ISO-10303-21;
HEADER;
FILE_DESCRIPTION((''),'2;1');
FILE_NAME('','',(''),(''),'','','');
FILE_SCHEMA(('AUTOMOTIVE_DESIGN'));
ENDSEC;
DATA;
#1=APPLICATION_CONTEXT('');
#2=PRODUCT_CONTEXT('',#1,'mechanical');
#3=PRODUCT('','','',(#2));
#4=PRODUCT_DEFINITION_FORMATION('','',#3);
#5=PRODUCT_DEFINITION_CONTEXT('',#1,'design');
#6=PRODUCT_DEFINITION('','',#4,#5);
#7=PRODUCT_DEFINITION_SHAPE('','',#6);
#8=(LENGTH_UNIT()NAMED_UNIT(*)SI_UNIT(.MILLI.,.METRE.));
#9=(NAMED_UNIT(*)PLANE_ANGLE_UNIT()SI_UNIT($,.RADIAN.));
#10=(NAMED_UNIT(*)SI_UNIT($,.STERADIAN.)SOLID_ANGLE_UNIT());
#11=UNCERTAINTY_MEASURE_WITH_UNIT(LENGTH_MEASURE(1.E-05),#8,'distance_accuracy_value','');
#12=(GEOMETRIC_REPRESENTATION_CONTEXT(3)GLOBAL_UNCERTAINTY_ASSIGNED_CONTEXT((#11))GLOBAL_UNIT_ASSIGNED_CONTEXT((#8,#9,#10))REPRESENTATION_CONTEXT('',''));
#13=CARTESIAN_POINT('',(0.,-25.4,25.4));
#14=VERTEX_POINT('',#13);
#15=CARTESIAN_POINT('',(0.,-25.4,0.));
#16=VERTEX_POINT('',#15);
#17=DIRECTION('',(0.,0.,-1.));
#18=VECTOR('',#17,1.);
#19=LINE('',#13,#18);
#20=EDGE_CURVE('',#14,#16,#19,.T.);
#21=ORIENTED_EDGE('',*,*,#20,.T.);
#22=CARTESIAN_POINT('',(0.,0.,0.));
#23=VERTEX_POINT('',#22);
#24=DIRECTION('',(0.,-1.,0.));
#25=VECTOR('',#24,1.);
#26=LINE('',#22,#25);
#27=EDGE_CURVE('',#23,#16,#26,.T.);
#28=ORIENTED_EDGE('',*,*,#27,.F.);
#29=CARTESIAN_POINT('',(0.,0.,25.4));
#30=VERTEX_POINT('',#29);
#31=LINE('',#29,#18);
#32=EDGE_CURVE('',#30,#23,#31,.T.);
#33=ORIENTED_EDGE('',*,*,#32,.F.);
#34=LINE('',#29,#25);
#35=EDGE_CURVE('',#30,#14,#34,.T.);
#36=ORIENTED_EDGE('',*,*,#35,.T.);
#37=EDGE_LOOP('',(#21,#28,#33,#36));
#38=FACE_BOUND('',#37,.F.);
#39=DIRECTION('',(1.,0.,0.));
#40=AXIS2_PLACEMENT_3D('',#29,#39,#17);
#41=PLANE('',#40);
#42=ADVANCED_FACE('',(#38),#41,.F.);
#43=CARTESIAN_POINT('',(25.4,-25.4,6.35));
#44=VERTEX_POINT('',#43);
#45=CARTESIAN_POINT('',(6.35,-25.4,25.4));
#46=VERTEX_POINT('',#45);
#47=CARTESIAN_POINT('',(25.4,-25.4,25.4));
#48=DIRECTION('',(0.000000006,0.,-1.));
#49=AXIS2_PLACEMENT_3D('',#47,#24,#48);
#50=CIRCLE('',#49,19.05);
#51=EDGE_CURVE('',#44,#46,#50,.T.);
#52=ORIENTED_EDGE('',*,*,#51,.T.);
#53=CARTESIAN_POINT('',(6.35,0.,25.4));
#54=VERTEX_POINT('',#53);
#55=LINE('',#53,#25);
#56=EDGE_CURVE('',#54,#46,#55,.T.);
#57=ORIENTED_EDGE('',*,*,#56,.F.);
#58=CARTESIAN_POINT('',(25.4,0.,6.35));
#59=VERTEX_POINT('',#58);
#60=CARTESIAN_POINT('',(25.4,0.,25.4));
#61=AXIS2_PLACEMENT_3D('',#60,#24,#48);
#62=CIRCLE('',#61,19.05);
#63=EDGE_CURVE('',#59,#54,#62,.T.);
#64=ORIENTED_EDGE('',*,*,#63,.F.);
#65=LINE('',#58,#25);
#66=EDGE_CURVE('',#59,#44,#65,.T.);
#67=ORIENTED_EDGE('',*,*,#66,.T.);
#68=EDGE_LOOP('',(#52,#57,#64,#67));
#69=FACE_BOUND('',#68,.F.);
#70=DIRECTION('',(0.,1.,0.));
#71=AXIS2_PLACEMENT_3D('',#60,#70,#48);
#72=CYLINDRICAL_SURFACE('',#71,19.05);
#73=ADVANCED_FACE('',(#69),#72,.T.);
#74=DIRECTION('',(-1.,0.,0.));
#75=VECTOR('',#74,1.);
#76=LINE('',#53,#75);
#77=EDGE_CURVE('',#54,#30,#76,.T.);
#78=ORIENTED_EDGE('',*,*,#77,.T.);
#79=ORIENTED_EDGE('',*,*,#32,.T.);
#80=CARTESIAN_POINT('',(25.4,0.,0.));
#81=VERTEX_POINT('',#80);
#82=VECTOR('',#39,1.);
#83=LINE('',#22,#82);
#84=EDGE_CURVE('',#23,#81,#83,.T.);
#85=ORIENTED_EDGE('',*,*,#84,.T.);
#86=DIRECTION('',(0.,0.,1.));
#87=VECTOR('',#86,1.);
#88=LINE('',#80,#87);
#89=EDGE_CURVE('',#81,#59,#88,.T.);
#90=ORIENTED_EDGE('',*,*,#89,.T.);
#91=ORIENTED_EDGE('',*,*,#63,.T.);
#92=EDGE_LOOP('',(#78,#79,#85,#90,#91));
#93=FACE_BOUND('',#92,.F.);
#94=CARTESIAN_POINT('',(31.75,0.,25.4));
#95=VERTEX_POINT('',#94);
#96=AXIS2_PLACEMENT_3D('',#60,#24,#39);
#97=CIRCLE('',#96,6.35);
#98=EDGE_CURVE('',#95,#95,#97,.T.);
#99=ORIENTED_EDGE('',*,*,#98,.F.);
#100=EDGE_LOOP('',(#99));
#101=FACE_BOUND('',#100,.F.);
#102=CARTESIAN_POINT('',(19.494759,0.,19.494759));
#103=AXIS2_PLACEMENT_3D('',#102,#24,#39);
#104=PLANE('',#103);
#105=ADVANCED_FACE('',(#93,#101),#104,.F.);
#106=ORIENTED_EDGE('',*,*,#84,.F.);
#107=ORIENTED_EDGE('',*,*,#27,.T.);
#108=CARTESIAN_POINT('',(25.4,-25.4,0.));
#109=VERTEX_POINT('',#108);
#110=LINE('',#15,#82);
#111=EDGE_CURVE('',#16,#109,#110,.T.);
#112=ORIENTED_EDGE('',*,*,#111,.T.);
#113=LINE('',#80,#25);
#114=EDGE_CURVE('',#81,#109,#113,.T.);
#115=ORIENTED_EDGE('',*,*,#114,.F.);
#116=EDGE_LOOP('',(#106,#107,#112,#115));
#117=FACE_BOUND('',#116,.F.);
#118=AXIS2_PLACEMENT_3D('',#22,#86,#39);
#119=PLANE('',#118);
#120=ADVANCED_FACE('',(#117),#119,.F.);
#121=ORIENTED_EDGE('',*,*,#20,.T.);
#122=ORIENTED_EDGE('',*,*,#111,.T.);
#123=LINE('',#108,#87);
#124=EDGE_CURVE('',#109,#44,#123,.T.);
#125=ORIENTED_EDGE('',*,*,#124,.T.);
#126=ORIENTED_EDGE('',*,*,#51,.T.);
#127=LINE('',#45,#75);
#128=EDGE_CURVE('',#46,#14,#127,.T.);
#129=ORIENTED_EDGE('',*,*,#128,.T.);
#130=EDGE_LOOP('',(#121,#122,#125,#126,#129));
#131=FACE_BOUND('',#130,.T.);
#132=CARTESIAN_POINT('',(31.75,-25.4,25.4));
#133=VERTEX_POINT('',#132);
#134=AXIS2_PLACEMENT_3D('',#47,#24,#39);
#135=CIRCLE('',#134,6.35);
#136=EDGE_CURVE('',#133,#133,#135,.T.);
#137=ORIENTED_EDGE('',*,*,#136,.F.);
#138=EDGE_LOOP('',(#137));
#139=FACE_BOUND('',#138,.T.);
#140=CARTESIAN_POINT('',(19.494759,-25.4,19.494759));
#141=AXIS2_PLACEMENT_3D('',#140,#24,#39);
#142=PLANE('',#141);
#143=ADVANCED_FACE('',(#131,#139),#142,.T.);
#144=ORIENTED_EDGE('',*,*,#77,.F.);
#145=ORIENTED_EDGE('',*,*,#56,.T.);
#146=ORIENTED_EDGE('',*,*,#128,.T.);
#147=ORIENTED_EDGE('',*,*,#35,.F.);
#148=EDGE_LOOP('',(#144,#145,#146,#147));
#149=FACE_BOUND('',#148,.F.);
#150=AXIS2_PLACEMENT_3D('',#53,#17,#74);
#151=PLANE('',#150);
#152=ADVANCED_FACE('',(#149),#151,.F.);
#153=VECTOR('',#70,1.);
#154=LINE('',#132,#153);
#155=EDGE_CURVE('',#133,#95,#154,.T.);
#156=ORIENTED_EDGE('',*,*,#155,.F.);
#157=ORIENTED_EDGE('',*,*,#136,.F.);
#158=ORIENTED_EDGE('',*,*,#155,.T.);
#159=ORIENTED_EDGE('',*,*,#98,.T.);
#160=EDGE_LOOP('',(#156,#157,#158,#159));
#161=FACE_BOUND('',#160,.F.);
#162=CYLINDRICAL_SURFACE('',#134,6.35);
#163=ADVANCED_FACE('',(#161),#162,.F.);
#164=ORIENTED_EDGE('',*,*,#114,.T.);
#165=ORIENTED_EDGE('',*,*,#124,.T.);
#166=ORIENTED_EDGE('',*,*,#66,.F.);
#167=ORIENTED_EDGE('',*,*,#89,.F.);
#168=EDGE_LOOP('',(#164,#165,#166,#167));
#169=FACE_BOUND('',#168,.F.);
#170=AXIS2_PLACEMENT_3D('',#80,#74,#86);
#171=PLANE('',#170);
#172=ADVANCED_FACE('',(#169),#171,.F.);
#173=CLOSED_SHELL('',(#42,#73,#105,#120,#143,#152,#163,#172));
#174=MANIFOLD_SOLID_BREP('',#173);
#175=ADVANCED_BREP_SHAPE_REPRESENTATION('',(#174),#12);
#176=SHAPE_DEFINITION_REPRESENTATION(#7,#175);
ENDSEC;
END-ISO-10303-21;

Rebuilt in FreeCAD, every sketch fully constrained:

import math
import FreeCAD as App
import Part
import Sketcher
from FreeCAD import Vector
Q = App.Units.Quantity

doc = App.newDocument("Part")
params = doc.addObject("Spreadsheet::Sheet", "Params")
for row, (alias, value) in enumerate([
    ("sketch1_width", "1 in"),
    ("sketch1_radius", "0.75 in"),
    ("pad1_length", "1 in"),
    ("sketch2_diameter", "0.5 in"),
    ("pocket1_length", "1 in"),
], start=1):
    params.set(f"A{row}", alias)
    params.set(f"B{row}", "=" + value)
    params.setAlias(f"B{row}", alias)

body = doc.addObject("PartDesign::Body", "Body")

# Sketch on XZ plane
sketch1 = body.newObject("Sketcher::SketchObject", "Sketch")
sketch1.AttachmentSupport = (doc.getObject("XZ_Plane"), [""])
sketch1.MapMode = "FlatFace"
sketch1.addGeometry(Part.LineSegment(Vector(0, 25.4, 0), Vector(0, 0, 0)), False)
sketch1.addGeometry(Part.LineSegment(Vector(0, 0, 0), Vector(25.4, 0, 0)), False)
sketch1.addGeometry(Part.LineSegment(Vector(25.4, 0, 0), Vector(25.4, 6.35, 0)), False)
sketch1.addGeometry(Part.ArcOfCircle(Part.Circle(Vector(25.4, 25.4, 0), Vector(0, 0, 1), 19.05), math.radians(-90), math.radians(180)), False)
sketch1.addGeometry(Part.LineSegment(Vector(6.35, 25.4, 0), Vector(0, 25.4, 0)), False)
sketch1.addConstraint(Sketcher.Constraint("Coincident", 0, 2, 1, 1))
sketch1.addConstraint(Sketcher.Constraint("Coincident", 1, 2, 2, 1))
sketch1.addConstraint(Sketcher.Constraint("Coincident", 2, 2, 3, 1))
sketch1.addConstraint(Sketcher.Constraint("Coincident", 3, 2, 4, 1))
sketch1.addConstraint(Sketcher.Constraint("Coincident", 4, 2, 0, 1))
sketch1.addConstraint(Sketcher.Constraint("Vertical", 0))
sketch1.addConstraint(Sketcher.Constraint("Horizontal", 1))
sketch1.addConstraint(Sketcher.Constraint("Vertical", 2))
sketch1.addConstraint(Sketcher.Constraint("Horizontal", 4))
sketch1.addConstraint(Sketcher.Constraint("Coincident", 0, 2, -1, 1))
sketch1.addConstraint(Sketcher.Constraint("Vertical", 3, 3, 1, 2))
sketch1.addConstraint(Sketcher.Constraint("Equal", 1, 0))
sketch1.addConstraint(Sketcher.Constraint("Equal", 4, 2))
sketch1.addConstraint(Sketcher.Constraint("DistanceX", 1, 1, 1, 2, Q("1 in")))
sketch1.addConstraint(Sketcher.Constraint("Radius", 3, Q("0.75 in")))
sketch1.setExpression("Constraints[13]", "Params.sketch1_width")
sketch1.setExpression("Constraints[14]", "Params.sketch1_radius")
pad1 = body.newObject("PartDesign::Pad", "Pad")
pad1.Profile = sketch1
pad1.setExpression("Length", "Params.pad1_length")

# Sketch on XZ plane
sketch2 = body.newObject("Sketcher::SketchObject", "Sketch001")
sketch2.AttachmentSupport = (doc.getObject("XZ_Plane"), [""])
sketch2.MapMode = "FlatFace"
sketch2.AttachmentOffset = App.Placement(Vector(0, 0, 1 * 25.4), App.Rotation())
sketch2.addGeometry(Part.Circle(Vector(25.4, 25.4, 0), Vector(0, 0, 1), 6.35), False)
sketch2.addConstraint(Sketcher.Constraint("Diameter", 0, Q("0.5 in")))
sketch2.addConstraint(Sketcher.Constraint("DistanceX", -1, 1, 0, 3, Q("1 in")))
sketch2.addConstraint(Sketcher.Constraint("DistanceY", -1, 1, 0, 3, Q("1 in")))
sketch2.setExpression("Constraints[0]", "Params.sketch2_diameter")
pocket1 = body.newObject("PartDesign::Pocket", "Pocket")
pocket1.Profile = sketch2
pocket1.setExpression("Length", "Params.pocket1_length")

doc.recompute()
